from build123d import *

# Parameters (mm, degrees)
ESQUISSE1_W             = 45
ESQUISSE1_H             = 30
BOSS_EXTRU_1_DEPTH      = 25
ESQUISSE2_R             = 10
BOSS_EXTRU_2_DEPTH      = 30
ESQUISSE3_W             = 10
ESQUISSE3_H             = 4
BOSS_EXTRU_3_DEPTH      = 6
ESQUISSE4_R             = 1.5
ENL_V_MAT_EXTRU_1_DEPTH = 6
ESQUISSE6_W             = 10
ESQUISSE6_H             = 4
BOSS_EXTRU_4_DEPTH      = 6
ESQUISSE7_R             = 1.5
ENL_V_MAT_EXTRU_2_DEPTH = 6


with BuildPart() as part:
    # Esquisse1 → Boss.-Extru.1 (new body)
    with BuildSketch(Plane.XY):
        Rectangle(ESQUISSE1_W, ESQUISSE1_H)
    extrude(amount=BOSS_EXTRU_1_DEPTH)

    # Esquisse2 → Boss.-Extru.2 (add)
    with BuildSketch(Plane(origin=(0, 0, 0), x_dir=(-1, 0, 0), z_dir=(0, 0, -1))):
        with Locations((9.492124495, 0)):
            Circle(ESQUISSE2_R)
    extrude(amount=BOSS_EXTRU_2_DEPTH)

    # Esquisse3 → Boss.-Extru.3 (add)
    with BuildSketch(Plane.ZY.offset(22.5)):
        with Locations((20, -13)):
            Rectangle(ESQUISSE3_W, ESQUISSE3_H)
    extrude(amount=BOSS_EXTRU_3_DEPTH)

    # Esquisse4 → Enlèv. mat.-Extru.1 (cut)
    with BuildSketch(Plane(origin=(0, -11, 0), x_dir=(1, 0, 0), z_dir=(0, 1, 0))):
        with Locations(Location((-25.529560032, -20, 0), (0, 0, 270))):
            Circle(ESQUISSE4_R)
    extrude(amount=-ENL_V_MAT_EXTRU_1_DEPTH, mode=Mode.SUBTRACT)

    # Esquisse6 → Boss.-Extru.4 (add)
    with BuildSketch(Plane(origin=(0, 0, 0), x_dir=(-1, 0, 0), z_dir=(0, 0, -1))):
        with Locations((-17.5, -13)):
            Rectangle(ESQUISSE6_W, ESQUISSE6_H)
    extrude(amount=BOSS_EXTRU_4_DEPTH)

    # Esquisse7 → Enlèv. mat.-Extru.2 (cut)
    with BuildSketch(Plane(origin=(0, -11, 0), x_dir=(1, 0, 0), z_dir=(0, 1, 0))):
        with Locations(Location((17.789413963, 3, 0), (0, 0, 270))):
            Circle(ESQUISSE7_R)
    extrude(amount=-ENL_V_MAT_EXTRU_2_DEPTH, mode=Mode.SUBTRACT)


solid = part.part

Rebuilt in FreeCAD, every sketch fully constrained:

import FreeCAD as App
import Part
import Sketcher

V = App.Vector
Q = App.Units.Quantity


def add_polygon(sketch, points):
    """Adds a closed chain of lines whose ends are joined by coincident constraints."""
    first, n = sketch.GeometryCount, len(points)
    for a, b in zip(points, points[1:] + points[:1]):
        sketch.addGeometry(Part.LineSegment(App.Vector(*a, 0), App.Vector(*b, 0)), False)
    for i in range(n):
        sketch.addConstraint(Sketcher.Constraint("Coincident", first + i, 2, first + (i + 1) % n, 1))

doc = App.newDocument("Part")
params = doc.addObject("Spreadsheet::Sheet", "Params")
for row, (alias, value) in enumerate([
    ("sketch1_width", "45 mm"),
    ("sketch1_height", "30 mm"),
    ("pad1_length", "25 mm"),
    ("sketch2_diameter", "20 mm"),
    ("pad2_length", "30 mm"),
    ("sketch3_width", "4 mm"),
    ("sketch3_height", "10 mm"),
    ("pad3_length", "6 mm"),
    ("sketch4_diameter", "3 mm"),
    ("pocket1_length", "6 mm"),
    ("sketch5_width", "10 mm"),
    ("sketch5_height", "4 mm"),
    ("pad4_length", "6 mm"),
    ("sketch6_diameter", "3 mm"),
    ("pocket2_length", "6 mm"),
], start=1):
    params.set(f"A{row}", alias)
    params.set(f"B{row}", "=" + value)
    params.setAlias(f"B{row}", alias)

body = doc.addObject("PartDesign::Body", "Body")

# Sketch on XY plane
sketch1 = body.newObject("Sketcher::SketchObject", "Sketch")
sketch1.AttachmentSupport = (doc.getObject("XY_Plane"), [""])
sketch1.MapMode = "FlatFace"
add_polygon(sketch1, [(-22, 15), (-22, -15), (22, -15), (22, 15)])  # lines 0-3
sketch1.addConstraint([
    Sketcher.Constraint("Vertical", 0),
    Sketcher.Constraint("Horizontal", 1),
    Sketcher.Constraint("Vertical", 2),
    Sketcher.Constraint("Horizontal", 3),
    Sketcher.Constraint("Symmetric", 0, 2, 2, 2, -1, 1),
    Sketcher.Constraint("DistanceX", 1, 1, 1, 2, Q("45 mm")),
    Sketcher.Constraint("DistanceY", 0, 2, 0, 1, Q("30 mm")),
])
sketch1.setExpression("Constraints[9]", "Params.sketch1_width")
sketch1.setExpression("Constraints[10]", "Params.sketch1_height")
pad1 = body.newObject("PartDesign::Pad", "Pad")
pad1.Profile = sketch1
pad1.setExpression("Length", "Params.pad1_length")

# Sketch on XY plane
sketch2 = body.newObject("Sketcher::SketchObject", "Sketch001")
sketch2.AttachmentSupport = (doc.getObject("XY_Plane"), [""])
sketch2.MapMode = "FlatFace"
sketch2.addGeometry(Part.Circle(V(-9, 0, 0), V(0, 0, 1), 10), False)
sketch2.addConstraint([
    Sketcher.Constraint("PointOnObject", 0, 3, -1),
    Sketcher.Constraint("Diameter", 0, Q("20 mm")),
    Sketcher.Constraint("DistanceX", 0, 3, -1, 1, Q("9.492124 mm")),
])
sketch2.setExpression("Constraints[1]", "Params.sketch2_diameter")
pad2 = body.newObject("PartDesign::Pad", "Pad001")
pad2.Profile = sketch2
pad2.setExpression("Length", "Params.pad2_length")
pad2.Reversed = True

# Sketch on YZ plane
sketch3 = body.newObject("Sketcher::SketchObject", "Sketch002")
sketch3.AttachmentSupport = (doc.getObject("YZ_Plane"), [""])
sketch3.MapMode = "FlatFace"
sketch3.AttachmentOffset = App.Placement(V(0, 0, -22.5), App.Rotation())
add_polygon(sketch3, [(-11, 15), (-15, 15), (-15, 25), (-11, 25)])  # lines 0-3
sketch3.addConstraint([
    Sketcher.Constraint("Horizontal", 0),
    Sketcher.Constraint("Vertical", 1),
    Sketcher.Constraint("Horizontal", 2),
    Sketcher.Constraint("Vertical", 3),
    Sketcher.Constraint("DistanceX", 0, 2, 0, 1, Q("4 mm")),
    Sketcher.Constraint("DistanceY", 1, 1, 1, 2, Q("10 mm")),
    Sketcher.Constraint("DistanceX", 0, 2, -1, 1, Q("15 mm")),
    Sketcher.Constraint("DistanceY", -1, 1, 0, 2, Q("15 mm")),
])
sketch3.setExpression("Constraints[8]", "Params.sketch3_width")
sketch3.setExpression("Constraints[9]", "Params.sketch3_height")
pad3 = body.newObject("PartDesign::Pad", "Pad002")
pad3.Profile = sketch3
pad3.setExpression("Length", "Params.pad3_length")
pad3.Reversed = True

# Sketch on XZ plane
sketch4 = body.newObject("Sketcher::SketchObject", "Sketch003")
sketch4.AttachmentSupport = (doc.getObject("XZ_Plane"), [""])
sketch4.MapMode = "FlatFace"
sketch4.AttachmentOffset = App.Placement(V(0, 0, 11), App.Rotation())
sketch4.addGeometry(Part.Circle(V(-25.5, 20, 0), V(0, 0, 1), 1.5), False)
sketch4.addConstraint([
    Sketcher.Constraint("Diameter", 0, Q("3 mm")),
    Sketcher.Constraint("DistanceY", -1, 1, 0, 3, Q("20 mm")),
    Sketcher.Constraint("DistanceX", 0, 3, -1, 1, Q("25.52956 mm")),
])
sketch4.setExpression("Constraints[0]", "Params.sketch4_diameter")
pocket1 = body.newObject("PartDesign::Pocket", "Pocket")
pocket1.Profile = sketch4
pocket1.setExpression("Length", "Params.pocket1_length")
pocket1.Reversed = True

# Sketch on XY plane
sketch5 = body.newObject("Sketcher::SketchObject", "Sketch004")
sketch5.AttachmentSupport = (doc.getObject("XY_Plane"), [""])
sketch5.MapMode = "FlatFace"
add_polygon(sketch5, [(22.5, -11), (22.5, -15), (12.5, -15), (12.5, -11)])  # lines 0-3
sketch5.addConstraint([
    Sketcher.Constraint("Vertical", 0),
    Sketcher.Constraint("Horizontal", 1),
    Sketcher.Constraint("Vertical", 2),
    Sketcher.Constraint("Horizontal", 3),
    Sketcher.Constraint("DistanceX", 1, 2, 1, 1, Q("10 mm")),
    Sketcher.Constraint("DistanceY", 0, 2, 0, 1, Q("4 mm")),
    Sketcher.Constraint("DistanceY", 0, 2, -1, 1, Q("15 mm")),
    Sketcher.Constraint("DistanceX", -1, 1, 0, 2, Q("22.5 mm")),
])
sketch5.setExpression("Constraints[8]", "Params.sketch5_width")
sketch5.setExpression("Constraints[9]", "Params.sketch5_height")
pad4 = body.newObject("PartDesign::Pad", "Pad003")
pad4.Profile = sketch5
pad4.setExpression("Length", "Params.pad4_length")
pad4.Reversed = True

# Sketch on XZ plane
sketch6 = body.newObject("Sketcher::SketchObject", "Sketch005")
sketch6.AttachmentSupport = (doc.getObject("XZ_Plane"), [""])
sketch6.MapMode = "FlatFace"
sketch6.AttachmentOffset = App.Placement(V(0, 0, 11), App.Rotation())
sketch6.addGeometry(Part.Circle(V(17.8, -3, 0), V(0, 0, 1), 1.5), False)
sketch6.addConstraint([
    Sketcher.Constraint("Diameter", 0, Q("3 mm")),
    Sketcher.Constraint("DistanceY", 0, 3, -1, 1, Q("3 mm")),
    Sketcher.Constraint("DistanceX", -1, 1, 0, 3, Q("17.789414 mm")),
])
sketch6.setExpression("Constraints[0]", "Params.sketch6_diameter")
pocket2 = body.newObject("PartDesign::Pocket", "Pocket001")
pocket2.Profile = sketch6
pocket2.setExpression("Length", "Params.pocket2_length")
pocket2.Reversed = True

doc.recompute()
